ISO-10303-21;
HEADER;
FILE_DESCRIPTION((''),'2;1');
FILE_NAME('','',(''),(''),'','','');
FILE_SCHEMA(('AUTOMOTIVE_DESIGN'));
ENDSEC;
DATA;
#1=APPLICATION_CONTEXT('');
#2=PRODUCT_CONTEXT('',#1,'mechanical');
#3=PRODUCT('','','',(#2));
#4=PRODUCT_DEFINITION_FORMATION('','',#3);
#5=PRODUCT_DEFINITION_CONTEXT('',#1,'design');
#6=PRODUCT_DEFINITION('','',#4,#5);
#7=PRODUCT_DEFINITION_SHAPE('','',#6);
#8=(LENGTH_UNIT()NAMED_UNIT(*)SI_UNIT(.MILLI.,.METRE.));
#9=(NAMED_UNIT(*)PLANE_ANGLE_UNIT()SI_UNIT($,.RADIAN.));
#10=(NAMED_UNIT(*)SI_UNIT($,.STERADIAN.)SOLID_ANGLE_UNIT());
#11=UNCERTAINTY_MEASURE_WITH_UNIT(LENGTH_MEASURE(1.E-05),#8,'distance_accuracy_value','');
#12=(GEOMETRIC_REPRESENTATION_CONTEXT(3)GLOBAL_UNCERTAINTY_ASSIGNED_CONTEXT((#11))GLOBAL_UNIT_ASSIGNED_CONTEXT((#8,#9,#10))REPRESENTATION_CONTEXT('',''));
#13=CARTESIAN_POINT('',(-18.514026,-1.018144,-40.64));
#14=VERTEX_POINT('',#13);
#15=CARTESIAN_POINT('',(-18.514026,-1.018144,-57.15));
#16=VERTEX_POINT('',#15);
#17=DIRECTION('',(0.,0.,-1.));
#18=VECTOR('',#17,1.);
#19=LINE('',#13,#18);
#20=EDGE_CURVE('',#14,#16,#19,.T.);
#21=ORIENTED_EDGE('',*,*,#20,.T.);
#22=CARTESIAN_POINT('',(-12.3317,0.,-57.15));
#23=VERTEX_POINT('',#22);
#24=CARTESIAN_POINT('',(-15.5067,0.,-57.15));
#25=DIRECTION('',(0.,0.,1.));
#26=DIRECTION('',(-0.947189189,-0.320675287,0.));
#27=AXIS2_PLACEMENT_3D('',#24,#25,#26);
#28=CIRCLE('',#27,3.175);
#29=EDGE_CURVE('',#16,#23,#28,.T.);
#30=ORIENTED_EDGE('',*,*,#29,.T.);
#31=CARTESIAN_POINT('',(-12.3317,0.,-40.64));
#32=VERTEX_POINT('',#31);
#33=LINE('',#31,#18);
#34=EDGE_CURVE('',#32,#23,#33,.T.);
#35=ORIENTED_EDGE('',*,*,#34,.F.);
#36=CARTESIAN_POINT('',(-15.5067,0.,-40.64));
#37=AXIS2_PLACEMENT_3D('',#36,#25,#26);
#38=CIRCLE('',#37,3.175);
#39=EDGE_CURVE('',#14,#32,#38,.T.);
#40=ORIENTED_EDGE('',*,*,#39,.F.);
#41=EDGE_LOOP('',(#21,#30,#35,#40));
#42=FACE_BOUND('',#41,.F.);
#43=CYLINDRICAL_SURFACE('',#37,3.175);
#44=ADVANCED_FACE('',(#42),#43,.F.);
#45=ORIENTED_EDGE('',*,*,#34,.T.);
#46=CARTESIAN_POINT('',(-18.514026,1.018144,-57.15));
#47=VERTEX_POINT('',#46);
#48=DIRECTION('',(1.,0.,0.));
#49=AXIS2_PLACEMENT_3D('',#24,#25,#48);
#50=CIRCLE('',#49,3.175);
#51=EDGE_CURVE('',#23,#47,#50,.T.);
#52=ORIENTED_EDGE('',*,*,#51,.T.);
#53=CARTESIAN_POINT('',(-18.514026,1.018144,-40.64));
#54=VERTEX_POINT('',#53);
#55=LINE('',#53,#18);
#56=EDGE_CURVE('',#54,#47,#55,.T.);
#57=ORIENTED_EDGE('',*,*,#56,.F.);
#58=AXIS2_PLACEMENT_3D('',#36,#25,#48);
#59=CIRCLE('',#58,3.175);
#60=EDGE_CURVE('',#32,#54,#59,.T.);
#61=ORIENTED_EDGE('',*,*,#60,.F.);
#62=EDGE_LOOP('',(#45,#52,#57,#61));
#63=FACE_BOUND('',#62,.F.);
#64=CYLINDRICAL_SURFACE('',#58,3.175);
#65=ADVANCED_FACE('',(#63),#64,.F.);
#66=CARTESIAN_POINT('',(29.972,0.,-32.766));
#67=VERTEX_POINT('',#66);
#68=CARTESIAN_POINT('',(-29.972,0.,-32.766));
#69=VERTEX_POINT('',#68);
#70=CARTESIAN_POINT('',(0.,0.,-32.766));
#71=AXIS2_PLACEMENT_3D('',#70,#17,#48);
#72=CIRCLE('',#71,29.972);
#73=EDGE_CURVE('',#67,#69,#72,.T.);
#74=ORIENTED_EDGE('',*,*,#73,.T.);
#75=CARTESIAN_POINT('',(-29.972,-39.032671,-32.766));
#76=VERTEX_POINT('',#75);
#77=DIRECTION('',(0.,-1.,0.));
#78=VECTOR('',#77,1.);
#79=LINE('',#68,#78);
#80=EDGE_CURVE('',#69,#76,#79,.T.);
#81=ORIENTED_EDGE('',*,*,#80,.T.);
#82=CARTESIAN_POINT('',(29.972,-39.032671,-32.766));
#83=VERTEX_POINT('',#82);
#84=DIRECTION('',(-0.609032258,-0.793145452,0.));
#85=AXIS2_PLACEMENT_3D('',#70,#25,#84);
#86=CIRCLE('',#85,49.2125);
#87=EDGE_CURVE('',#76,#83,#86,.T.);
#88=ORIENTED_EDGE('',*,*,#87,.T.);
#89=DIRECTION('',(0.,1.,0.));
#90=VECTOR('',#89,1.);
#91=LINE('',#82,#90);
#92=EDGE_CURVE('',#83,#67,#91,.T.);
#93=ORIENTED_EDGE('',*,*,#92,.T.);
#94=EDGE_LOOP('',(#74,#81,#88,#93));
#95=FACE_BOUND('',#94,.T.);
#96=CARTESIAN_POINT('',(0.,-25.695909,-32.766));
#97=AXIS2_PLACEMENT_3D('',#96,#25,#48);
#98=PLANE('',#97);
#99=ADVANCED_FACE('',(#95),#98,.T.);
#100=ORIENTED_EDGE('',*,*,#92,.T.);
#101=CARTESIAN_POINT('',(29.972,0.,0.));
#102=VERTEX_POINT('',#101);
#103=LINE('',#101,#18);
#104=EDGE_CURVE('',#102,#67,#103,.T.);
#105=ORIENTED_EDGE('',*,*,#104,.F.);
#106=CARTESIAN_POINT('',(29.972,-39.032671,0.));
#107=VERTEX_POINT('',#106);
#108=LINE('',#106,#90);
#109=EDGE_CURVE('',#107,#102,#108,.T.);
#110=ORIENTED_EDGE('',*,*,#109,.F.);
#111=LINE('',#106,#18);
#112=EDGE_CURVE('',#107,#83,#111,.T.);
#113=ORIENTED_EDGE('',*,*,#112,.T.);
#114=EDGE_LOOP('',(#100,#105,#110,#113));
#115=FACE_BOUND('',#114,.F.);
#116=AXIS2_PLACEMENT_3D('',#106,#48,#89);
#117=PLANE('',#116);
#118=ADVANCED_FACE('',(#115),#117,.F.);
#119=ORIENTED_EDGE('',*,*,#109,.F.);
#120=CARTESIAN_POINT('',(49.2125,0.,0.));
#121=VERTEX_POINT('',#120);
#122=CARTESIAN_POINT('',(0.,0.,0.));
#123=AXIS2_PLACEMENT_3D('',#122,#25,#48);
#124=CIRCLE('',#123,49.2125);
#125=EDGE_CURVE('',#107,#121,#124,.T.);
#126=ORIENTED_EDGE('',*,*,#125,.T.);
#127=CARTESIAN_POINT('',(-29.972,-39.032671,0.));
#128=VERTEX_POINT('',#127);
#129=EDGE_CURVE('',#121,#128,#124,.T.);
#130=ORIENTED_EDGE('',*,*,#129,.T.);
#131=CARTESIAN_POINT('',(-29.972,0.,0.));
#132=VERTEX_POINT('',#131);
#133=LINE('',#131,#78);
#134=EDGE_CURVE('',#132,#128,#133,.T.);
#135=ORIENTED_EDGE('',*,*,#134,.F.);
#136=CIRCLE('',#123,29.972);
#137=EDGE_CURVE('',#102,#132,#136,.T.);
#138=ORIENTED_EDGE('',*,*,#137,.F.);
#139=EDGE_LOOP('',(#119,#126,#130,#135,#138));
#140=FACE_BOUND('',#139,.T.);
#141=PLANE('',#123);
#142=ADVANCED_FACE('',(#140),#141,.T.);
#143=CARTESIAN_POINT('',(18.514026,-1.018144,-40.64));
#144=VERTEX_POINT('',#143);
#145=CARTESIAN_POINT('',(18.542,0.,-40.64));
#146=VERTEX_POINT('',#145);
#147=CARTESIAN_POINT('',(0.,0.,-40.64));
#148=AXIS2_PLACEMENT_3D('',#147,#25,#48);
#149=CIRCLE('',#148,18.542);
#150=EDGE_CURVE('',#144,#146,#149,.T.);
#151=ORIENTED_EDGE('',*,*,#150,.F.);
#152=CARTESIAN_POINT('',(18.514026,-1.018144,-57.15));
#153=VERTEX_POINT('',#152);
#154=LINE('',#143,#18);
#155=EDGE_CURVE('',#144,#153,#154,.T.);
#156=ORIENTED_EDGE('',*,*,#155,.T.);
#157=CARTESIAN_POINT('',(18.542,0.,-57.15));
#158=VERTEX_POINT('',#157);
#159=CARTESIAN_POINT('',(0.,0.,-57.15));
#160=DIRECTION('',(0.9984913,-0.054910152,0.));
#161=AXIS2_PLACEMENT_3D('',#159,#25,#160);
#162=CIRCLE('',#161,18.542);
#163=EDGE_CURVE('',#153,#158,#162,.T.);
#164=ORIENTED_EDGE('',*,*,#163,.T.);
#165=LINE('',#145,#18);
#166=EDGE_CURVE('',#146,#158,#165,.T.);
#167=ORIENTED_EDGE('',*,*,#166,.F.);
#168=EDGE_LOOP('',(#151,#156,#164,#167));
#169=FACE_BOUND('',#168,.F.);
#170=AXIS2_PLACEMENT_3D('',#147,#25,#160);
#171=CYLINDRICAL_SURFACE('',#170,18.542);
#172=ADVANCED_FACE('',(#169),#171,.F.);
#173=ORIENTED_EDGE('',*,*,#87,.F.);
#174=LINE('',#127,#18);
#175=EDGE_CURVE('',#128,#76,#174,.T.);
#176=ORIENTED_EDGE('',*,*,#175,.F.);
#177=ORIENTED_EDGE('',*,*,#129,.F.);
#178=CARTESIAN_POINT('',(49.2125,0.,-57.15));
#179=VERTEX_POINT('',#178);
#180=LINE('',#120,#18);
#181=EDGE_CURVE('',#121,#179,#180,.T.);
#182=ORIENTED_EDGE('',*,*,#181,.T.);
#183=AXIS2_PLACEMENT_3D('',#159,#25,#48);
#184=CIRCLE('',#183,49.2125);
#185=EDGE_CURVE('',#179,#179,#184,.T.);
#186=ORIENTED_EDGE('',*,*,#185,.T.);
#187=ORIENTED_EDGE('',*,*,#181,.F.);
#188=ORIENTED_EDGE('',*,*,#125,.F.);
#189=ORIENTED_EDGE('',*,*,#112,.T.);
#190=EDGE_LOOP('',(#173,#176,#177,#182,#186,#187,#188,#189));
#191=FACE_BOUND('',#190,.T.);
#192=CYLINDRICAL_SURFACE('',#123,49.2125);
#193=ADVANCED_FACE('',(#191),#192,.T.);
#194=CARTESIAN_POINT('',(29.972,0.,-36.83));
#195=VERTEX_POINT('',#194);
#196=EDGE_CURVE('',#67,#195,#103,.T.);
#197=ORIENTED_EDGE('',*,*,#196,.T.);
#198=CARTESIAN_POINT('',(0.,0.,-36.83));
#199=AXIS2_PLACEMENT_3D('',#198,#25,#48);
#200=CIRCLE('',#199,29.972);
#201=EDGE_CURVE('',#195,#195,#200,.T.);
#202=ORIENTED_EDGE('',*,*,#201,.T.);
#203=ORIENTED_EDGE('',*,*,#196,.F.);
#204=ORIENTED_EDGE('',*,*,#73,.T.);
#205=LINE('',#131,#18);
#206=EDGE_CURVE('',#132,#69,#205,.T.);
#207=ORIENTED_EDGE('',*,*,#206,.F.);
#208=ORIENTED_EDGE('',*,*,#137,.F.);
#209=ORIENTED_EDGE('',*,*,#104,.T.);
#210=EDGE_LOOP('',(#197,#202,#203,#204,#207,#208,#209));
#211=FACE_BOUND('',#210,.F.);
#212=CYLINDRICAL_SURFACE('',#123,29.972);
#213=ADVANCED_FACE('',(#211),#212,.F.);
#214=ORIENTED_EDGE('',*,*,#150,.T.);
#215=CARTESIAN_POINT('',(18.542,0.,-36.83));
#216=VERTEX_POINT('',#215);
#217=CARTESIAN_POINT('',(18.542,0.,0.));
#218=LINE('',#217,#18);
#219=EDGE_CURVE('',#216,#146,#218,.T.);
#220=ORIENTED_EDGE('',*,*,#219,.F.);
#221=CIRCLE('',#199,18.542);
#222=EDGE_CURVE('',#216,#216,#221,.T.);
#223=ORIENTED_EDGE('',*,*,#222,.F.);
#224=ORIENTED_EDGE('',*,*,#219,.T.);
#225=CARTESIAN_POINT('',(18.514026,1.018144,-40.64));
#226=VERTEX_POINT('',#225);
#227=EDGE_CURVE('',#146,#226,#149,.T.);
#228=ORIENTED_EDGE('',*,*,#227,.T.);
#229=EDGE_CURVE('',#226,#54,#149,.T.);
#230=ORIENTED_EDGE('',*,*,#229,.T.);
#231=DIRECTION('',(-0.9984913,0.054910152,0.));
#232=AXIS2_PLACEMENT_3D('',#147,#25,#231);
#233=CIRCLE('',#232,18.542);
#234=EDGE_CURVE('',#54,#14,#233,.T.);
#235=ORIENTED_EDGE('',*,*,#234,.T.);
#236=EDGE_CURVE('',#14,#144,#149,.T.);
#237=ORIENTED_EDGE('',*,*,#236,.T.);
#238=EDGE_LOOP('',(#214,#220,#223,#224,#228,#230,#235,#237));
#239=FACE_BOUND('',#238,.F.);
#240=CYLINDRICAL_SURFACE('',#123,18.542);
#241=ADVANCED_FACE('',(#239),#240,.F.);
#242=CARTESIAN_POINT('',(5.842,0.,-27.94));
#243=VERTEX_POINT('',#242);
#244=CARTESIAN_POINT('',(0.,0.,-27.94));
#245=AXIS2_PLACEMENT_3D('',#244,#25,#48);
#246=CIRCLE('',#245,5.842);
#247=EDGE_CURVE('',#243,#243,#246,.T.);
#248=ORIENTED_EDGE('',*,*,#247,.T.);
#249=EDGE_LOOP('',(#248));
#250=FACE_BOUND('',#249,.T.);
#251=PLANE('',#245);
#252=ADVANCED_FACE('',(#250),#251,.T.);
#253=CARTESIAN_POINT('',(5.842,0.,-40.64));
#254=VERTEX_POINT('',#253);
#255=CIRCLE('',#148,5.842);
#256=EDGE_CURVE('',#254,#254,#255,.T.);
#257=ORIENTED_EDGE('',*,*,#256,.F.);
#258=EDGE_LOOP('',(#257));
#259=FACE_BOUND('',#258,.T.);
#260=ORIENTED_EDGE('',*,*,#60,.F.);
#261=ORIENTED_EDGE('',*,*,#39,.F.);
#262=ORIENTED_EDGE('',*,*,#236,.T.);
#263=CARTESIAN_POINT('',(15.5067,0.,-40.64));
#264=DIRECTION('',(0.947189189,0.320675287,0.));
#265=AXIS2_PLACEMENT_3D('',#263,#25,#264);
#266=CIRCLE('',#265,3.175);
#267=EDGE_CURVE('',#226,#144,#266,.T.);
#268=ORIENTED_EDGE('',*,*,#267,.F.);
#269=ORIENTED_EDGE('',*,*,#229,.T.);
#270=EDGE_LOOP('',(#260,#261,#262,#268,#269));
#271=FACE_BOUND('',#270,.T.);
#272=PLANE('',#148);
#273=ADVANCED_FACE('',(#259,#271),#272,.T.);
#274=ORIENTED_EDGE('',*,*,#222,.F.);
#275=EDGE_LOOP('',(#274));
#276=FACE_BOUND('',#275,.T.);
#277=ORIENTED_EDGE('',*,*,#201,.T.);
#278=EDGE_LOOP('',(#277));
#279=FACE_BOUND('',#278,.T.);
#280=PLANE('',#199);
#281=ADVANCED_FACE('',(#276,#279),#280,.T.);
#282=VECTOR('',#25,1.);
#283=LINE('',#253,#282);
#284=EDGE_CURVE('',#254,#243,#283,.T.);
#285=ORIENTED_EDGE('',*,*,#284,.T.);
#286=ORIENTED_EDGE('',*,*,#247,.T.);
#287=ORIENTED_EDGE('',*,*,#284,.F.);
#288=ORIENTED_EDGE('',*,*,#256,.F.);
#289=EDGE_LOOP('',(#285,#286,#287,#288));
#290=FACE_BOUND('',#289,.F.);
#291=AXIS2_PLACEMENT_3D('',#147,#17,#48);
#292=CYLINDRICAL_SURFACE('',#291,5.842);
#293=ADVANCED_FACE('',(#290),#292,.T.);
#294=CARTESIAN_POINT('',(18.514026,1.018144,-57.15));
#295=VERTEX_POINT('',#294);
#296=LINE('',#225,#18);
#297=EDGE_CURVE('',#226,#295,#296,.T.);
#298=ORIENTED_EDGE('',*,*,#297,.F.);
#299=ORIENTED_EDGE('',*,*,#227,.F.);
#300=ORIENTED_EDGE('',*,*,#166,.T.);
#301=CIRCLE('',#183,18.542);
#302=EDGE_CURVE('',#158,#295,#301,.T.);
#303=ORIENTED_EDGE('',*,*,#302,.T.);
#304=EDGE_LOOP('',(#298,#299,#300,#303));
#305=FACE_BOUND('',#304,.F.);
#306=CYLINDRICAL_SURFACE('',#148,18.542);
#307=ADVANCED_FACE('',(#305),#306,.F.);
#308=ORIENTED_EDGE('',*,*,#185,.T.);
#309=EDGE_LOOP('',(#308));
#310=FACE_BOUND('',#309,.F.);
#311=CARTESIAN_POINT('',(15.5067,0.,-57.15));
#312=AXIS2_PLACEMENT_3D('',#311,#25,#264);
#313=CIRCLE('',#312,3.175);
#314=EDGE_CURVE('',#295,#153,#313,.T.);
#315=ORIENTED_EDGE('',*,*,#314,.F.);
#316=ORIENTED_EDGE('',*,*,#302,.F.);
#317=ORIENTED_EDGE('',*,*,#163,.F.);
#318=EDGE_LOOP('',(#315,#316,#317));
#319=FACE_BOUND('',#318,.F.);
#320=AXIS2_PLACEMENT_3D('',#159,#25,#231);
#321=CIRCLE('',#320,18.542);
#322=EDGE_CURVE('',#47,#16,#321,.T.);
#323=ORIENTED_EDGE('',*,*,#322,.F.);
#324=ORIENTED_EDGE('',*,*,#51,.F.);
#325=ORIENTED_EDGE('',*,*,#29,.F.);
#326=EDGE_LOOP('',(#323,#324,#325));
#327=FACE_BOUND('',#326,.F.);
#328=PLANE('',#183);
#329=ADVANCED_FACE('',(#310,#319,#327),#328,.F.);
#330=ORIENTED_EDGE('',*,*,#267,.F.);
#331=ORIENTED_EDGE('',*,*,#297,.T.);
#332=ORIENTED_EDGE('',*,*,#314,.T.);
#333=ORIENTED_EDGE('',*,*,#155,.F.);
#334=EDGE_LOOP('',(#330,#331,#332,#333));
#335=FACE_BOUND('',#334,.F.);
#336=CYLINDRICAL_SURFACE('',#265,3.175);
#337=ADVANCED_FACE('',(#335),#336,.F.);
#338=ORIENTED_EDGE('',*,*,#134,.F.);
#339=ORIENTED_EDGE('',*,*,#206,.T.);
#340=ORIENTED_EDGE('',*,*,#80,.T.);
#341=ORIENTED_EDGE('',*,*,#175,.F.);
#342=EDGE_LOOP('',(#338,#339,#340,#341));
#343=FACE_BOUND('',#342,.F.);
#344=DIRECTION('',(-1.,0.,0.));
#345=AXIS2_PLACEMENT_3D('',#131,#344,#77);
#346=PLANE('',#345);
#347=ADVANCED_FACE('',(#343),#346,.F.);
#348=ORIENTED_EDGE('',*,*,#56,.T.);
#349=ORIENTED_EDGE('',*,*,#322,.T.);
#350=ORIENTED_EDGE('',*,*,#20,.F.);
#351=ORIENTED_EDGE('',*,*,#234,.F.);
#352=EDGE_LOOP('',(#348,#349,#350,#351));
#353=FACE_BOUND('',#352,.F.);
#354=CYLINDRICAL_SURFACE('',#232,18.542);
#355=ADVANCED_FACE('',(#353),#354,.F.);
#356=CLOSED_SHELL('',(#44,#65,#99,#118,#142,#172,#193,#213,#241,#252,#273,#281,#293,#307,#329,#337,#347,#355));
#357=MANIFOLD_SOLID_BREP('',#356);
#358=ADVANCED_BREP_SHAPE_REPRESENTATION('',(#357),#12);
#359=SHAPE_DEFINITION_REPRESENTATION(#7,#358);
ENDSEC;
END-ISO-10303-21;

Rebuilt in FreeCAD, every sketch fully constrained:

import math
import FreeCAD as App
import Part
import Sketcher
Q = App.Units.Quantity

doc = App.newDocument("Part")
body = doc.addObject("PartDesign::Body", "Body")

sketch1 = doc.addObject("Sketcher::SketchObject", "Sketch")
body.addObject(sketch1)
sketch1.AttachmentSupport = (doc.XY_Plane, [""])
sketch1.MapMode = "FlatFace"
sketch1.addGeometry(Part.Circle(App.Vector(0, 0, 0), App.Vector(0, 0, 1), 49), False)
sketch1.addConstraint([
    Sketcher.Constraint("Coincident", 0, 3, -1, 1),
    Sketcher.Constraint("Diameter", 0, Q("3.875 in")),
])
pad1 = doc.addObject("PartDesign::Pad", "Pad")
body.addObject(pad1)
pad1.Profile = sketch1
pad1.Length = Q("2.25 in")
pad1.Reversed = True

sketch2 = doc.addObject("Sketcher::SketchObject", "Sketch001")
body.addObject(sketch2)
sketch2.AttachmentSupport = (doc.XY_Plane, [""])
sketch2.MapMode = "FlatFace"
sketch2.addGeometry(Part.Circle(App.Vector(0, 0, 0), App.Vector(0, 0, 1), 19), False)
sketch2.addConstraint([
    Sketcher.Constraint("Coincident", 0, 3, -1, 1),
    Sketcher.Constraint("Diameter", 0, Q("1.46 in")),
])
pocket1 = doc.addObject("PartDesign::Pocket", "Pocket")
body.addObject(pocket1)
pocket1.Profile = sketch2
pocket1.Length = Q("1.6 in")

sketch3 = doc.addObject("Sketcher::SketchObject", "Sketch002")
body.addObject(sketch3)
sketch3.AttachmentSupport = (doc.XY_Plane, [""])
sketch3.MapMode = "FlatFace"
sketch3.addGeometry([
    Part.Circle(App.Vector(0, 0, 0), App.Vector(0, 0, 1), 30),
    Part.Circle(App.Vector(0, 0, 0), App.Vector(0, 0, 1), 19),
], False)
sketch3.addConstraint([
    Sketcher.Constraint("Coincident", 0, 3, -1, 1),
    Sketcher.Constraint("Coincident", 1, 3, -1, 1),
    Sketcher.Constraint("Diameter", 0, Q("2.36 in")),
    Sketcher.Constraint("Diameter", 1, Q("1.46 in")),
])
pocket2 = doc.addObject("PartDesign::Pocket", "Pocket001")
body.addObject(pocket2)
pocket2.Profile = sketch3
pocket2.Length = Q("1.45 in")

sketch4 = doc.addObject("Sketcher::SketchObject", "Sketch003")
body.addObject(sketch4)
sketch4.AttachmentSupport = (doc.XY_Plane, [""])
sketch4.MapMode = "FlatFace"
sketch4.addGeometry([
    Part.LineSegment(App.Vector(30, -39, 0), App.Vector(30, 0, 0)),
    Part.ArcOfCircle(Part.Circle(App.Vector(0, 0, 0), App.Vector(0, 0, 1), 30), math.radians(180), math.radians(360)),
    Part.LineSegment(App.Vector(-30, 0, 0), App.Vector(-30, -39, 0)),
    Part.ArcOfCircle(Part.Circle(App.Vector(0, 0, 0), App.Vector(0, 0, 1), 49), math.radians(-128), math.radians(-52)),
], False)
sketch4.addConstraint([
    Sketcher.Constraint("Tangent", 0, 2, 1, 2),
    Sketcher.Constraint("Tangent", 1, 1, 2, 1),
    Sketcher.Constraint("Coincident", 2, 2, 3, 1),
    Sketcher.Constraint("Coincident", 3, 2, 0, 1),
    Sketcher.Constraint("Vertical", 0),
    Sketcher.Constraint("Vertical", 2),
    Sketcher.Constraint("Coincident", 1, 3, -1, 1),
    Sketcher.Constraint("Coincident", 3, 3, -1, 1),
    Sketcher.Constraint("Radius", 1, Q("1.18 in")),
    Sketcher.Constraint("Radius", 3, Q("1.9375 in")),
])
pocket3 = doc.addObject("PartDesign::Pocket", "Pocket002")
body.addObject(pocket3)
pocket3.Profile = sketch4
pocket3.Length = Q("1.29 in")

sketch5 = doc.addObject("Sketcher::SketchObject", "Sketch004")
body.addObject(sketch5)
sketch5.AttachmentSupport = (doc.XY_Plane, [""])
sketch5.MapMode = "FlatFace"
sketch5.AttachmentOffset = App.Placement(App.Vector(0, 0, -1.6 * 25.4), App.Rotation())
sketch5.addGeometry(Part.Circle(App.Vector(0, 0, 0), App.Vector(0, 0, 1), 6), False)
sketch5.addConstraint([
    Sketcher.Constraint("Coincident", 0, 3, -1, 1),
    Sketcher.Constraint("Diameter", 0, Q("0.46 in")),
])
pad2 = doc.addObject("PartDesign::Pad", "Pad001")
body.addObject(pad2)
pad2.Profile = sketch5
pad2.Length = Q("0.5 in")

sketch6 = doc.addObject("Sketcher::SketchObject", "Sketch005")
body.addObject(sketch6)
sketch6.AttachmentSupport = (doc.XY_Plane, [""])
sketch6.MapMode = "FlatFace"
sketch6.AttachmentOffset = App.Placement(App.Vector(0, 0, -1.6 * 25.4), App.Rotation())
sketch6.addGeometry([
    Part.ArcOfCircle(Part.Circle(App.Vector(-15.5, 0, 0), App.Vector(0, 0, 1), 3.2), math.radians(-161), math.radians(0)),
    Part.ArcOfCircle(Part.Circle(App.Vector(-15.5, 0, 0), App.Vector(0, 0, 1), 3.2), math.radians(0), math.radians(161)),
    Part.ArcOfCircle(Part.Circle(App.Vector(0, 0, 0), App.Vector(0, 0, 1), 18.5), math.radians(176.85), math.radians(183.15)),
    Part.ArcOfCircle(Part.Circle(App.Vector(0, 0, 0), App.Vector(0, 0, 1), 18.5), math.radians(0), math.radians(3.15)),
    Part.ArcOfCircle(Part.Circle(App.Vector(15.5, 0, 0), App.Vector(0, 0, 1), 3.2), math.radians(19), math.radians(341)),
    Part.ArcOfCircle(Part.Circle(App.Vector(0, 0, 0), App.Vector(0, 0, 1), 18.5), math.radians(-3.15), math.radians(0)),
], False)
sketch6.addConstraint([
    Sketcher.Constraint("Tangent", 0, 2, 1, 1),
    Sketcher.Constraint("Coincident", 1, 2, 2, 1),
    Sketcher.Constraint("Coincident", 2, 2, 0, 1),
    Sketcher.Constraint("Coincident", 3, 2, 4, 1),
    Sketcher.Constraint("Coincident", 4, 2, 5, 1),
    Sketcher.Constraint("Tangent", 5, 2, 3, 1),
    Sketcher.Constraint("Coincident", 2, 3, -1, 1),
    Sketcher.Constraint("Coincident", 3, 3, -1, 1),
    Sketcher.Constraint("Equal", 0, 1),
    Sketcher.Constraint("Equal", 2, 3),
    Sketcher.Constraint("Equal", 1, 4),
    Sketcher.Constraint("Equal", 3, 5),
    Sketcher.Constraint("Symmetric", 0, 3, 4, 3, -1, 1),
    Sketcher.Constraint("PointOnObject", 0, 3, -1),
    Sketcher.Constraint("PointOnObject", 0, 2, -1),
    Sketcher.Constraint("PointOnObject", 5, 2, -1),
    Sketcher.Constraint("Radius", 2, Q("0.73 in")),
    Sketcher.Constraint("Radius", 0, Q("0.125 in")),
    Sketcher.Constraint("DistanceX", 0, 3, 4, 3, Q("1.221 in")),
])
pocket4 = doc.addObject("PartDesign::Pocket", "Pocket003")
body.addObject(pocket4)
pocket4.Profile = sketch6
pocket4.Type = "ThroughAll"

doc.recompute()
